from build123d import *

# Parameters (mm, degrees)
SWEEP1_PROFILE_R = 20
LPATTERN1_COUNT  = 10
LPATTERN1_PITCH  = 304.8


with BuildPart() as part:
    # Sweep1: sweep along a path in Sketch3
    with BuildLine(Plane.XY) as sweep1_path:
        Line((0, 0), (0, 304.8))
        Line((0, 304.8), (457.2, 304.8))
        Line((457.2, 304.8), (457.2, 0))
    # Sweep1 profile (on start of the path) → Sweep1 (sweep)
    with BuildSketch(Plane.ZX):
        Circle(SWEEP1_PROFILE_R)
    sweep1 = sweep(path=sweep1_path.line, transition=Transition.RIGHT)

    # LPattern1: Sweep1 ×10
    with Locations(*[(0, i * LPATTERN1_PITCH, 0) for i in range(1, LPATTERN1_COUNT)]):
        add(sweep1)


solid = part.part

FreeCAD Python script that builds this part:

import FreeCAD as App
import Part
import Sketcher

V = App.Vector
Q = App.Units.Quantity

doc = App.newDocument("Part")
params = doc.addObject("Spreadsheet::Sheet", "Params")
for row, (alias, value) in enumerate([
    ("sketch2_width", "18 in"),
    ("sketch2_height", "12 in"),
    ("linearpattern_pitch", "12 in"),
], start=1):
    params.set(f"A{row}", alias)
    params.set(f"B{row}", "=" + value)
    params.setAlias(f"B{row}", alias)

body = doc.addObject("PartDesign::Body", "Body")

# Sketch on XZ plane
sketch1 = body.newObject("Sketcher::SketchObject", "Sketch")
sketch1.AttachmentSupport = (doc.getObject("XZ_Plane"), [""])
sketch1.MapMode = "FlatFace"
sketch1.addGeometry(Part.Circle(V(0, 0, 0), V(0, 0, 1), 20), False)
sketch1.addConstraint([
    Sketcher.Constraint("Coincident", 0, 3, -1, 1),
    Sketcher.Constraint("Diameter", 0, 40.0),
])

# Sketch on XY plane
sketch2 = body.newObject("Sketcher::SketchObject", "Sketch001")
sketch2.AttachmentSupport = (doc.getObject("XY_Plane"), [""])
sketch2.MapMode = "FlatFace"
sketch2.addGeometry([
    Part.LineSegment(V(0, 0, 0), V(0, 304.8, 0)),
    Part.LineSegment(V(0, 304.8, 0), V(457.2, 304.8, 0)),
    Part.LineSegment(V(457.2, 304.8, 0), V(457.2, 0, 0)),
], False)
sketch2.addConstraint([
    Sketcher.Constraint("Coincident", 0, 2, 1, 1),
    Sketcher.Constraint("Coincident", 1, 2, 2, 1),
    Sketcher.Constraint("Vertical", 0),
    Sketcher.Constraint("Horizontal", 1),
    Sketcher.Constraint("Vertical", 2),
    Sketcher.Constraint("Coincident", 0, 1, -1, 1),
    Sketcher.Constraint("PointOnObject", 2, 2, -1),
    Sketcher.Constraint("DistanceX", 1, 1, 1, 2, Q("18 in")),
    Sketcher.Constraint("DistanceY", 0, 1, 0, 2, Q("12 in")),
])
sketch2.setExpression("Constraints[7]", "Params.sketch2_width")
sketch2.setExpression("Constraints[8]", "Params.sketch2_height")
doc.recompute()

additivepipe = body.newObject("PartDesign::AdditivePipe", "AdditivePipe")
additivepipe.Profile = sketch1
additivepipe.Spine = (sketch2, ["Edge1", "Edge2", "Edge3"])
additivepipe.Transition = "Right corner"
doc.recompute()

linearpattern = body.newObject("PartDesign::LinearPattern", "LinearPattern")
linearpattern.Originals = [additivepipe]
linearpattern.Direction = (doc.getObject("Y_Axis"), [""])
linearpattern.Mode = "offset"
linearpattern.setExpression("Offset", "Params.linearpattern_pitch")
linearpattern.Occurrences = 10
body.Tip = linearpattern

doc.recompute()
